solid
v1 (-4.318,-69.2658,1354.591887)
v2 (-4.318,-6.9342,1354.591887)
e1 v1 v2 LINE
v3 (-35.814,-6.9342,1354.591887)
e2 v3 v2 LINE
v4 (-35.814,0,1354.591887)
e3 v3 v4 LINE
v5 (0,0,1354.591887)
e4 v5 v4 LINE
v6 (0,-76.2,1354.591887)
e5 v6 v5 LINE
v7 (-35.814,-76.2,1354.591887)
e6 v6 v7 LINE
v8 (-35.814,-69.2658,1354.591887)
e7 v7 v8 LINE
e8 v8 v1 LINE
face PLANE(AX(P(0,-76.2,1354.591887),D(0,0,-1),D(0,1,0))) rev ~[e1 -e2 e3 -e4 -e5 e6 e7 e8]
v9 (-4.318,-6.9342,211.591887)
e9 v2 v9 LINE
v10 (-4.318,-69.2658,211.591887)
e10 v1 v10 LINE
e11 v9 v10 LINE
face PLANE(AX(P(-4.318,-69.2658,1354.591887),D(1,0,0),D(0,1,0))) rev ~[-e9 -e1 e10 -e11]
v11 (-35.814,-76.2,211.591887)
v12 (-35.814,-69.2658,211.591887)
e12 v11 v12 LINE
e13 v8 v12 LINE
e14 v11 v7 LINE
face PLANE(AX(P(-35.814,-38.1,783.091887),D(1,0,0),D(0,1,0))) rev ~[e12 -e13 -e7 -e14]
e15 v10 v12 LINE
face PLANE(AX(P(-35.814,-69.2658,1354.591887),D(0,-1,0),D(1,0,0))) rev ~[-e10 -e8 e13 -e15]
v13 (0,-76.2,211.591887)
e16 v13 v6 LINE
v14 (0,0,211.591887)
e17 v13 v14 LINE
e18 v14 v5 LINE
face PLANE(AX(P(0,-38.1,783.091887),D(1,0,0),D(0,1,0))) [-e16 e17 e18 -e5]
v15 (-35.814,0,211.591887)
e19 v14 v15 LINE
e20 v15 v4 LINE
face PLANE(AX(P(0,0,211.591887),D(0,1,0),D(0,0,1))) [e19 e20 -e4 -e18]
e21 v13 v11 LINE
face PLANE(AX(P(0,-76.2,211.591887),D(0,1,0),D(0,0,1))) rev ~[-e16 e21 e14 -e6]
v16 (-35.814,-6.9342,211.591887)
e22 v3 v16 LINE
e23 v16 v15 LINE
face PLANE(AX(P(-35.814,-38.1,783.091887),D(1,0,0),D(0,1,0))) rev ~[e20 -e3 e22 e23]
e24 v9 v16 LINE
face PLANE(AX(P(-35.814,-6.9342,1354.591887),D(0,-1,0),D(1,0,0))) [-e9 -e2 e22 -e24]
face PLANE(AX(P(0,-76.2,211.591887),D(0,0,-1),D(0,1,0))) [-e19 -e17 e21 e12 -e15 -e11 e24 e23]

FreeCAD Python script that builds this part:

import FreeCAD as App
import Part
import Sketcher
Q = App.Units.Quantity


def add_polygon(sketch, points):
    """Adds a closed chain of lines whose ends are joined by coincident constraints."""
    first, n = sketch.GeometryCount, len(points)
    for a, b in zip(points, points[1:] + points[:1]):
        sketch.addGeometry(Part.LineSegment(App.Vector(*a, 0), App.Vector(*b, 0)), False)
    for i in range(n):
        sketch.addConstraint(Sketcher.Constraint("Coincident", first + i, 2, first + (i + 1) % n, 1))

doc = App.newDocument("Part")
body = doc.addObject("PartDesign::Body", "Body")

sketch1 = body.newObject("Sketcher::SketchObject", "Sketch")
sketch1.AttachmentSupport = (doc.getObject("YZ_Plane"), [""])
sketch1.MapMode = "FlatFace"
add_polygon(sketch1, [(-76, 1355), (-76, 212), (0, 212), (0, 1355)])
sketch1.addConstraint(Sketcher.Constraint("Vertical", 0))
sketch1.addConstraint(Sketcher.Constraint("Horizontal", 1))
sketch1.addConstraint(Sketcher.Constraint("Vertical", 2))
sketch1.addConstraint(Sketcher.Constraint("Horizontal", 3))
sketch1.addConstraint(Sketcher.Constraint("PointOnObject", 1, 2, -2))
sketch1.addConstraint(Sketcher.Constraint("DistanceX", 1, 1, 1, 2, Q("3 in")))
sketch1.addConstraint(Sketcher.Constraint("DistanceY", 0, 2, 0, 1, Q("45 in")))
sketch1.addConstraint(Sketcher.Constraint("DistanceY", -1, 1, 0, 2, 211.591887))
pad1 = body.newObject("PartDesign::Pad", "Pad")
pad1.Profile = sketch1
pad1.Length = Q("1.41 in")
pad1.Reversed = True

sketch2 = body.newObject("Sketcher::SketchObject", "Sketch001")
sketch2.AttachmentSupport = (doc.getObject("XY_Plane"), [""])
sketch2.MapMode = "FlatFace"
sketch2.AttachmentOffset = App.Placement(App.Vector(0, 0, 1354.591887), App.Rotation())
add_polygon(sketch2, [(-36, -7), (-36, -69), (-4, -69), (-4, -7)])
sketch2.addConstraint(Sketcher.Constraint("Vertical", 0))
sketch2.addConstraint(Sketcher.Constraint("Horizontal", 1))
sketch2.addConstraint(Sketcher.Constraint("Vertical", 2))
sketch2.addConstraint(Sketcher.Constraint("Horizontal", 3))
sketch2.addConstraint(Sketcher.Constraint("DistanceX", 1, 1, 1, 2, Q("1.24 in")))
sketch2.addConstraint(Sketcher.Constraint("DistanceY", 0, 2, 0, 1, Q("2.454 in")))
sketch2.addConstraint(Sketcher.Constraint("DistanceX", 0, 2, -1, 1, Q("1.41 in")))
sketch2.addConstraint(Sketcher.Constraint("DistanceY", 0, 2, -1, 1, Q("2.727 in")))
pocket1 = body.newObject("PartDesign::Pocket", "Pocket")
pocket1.Profile = sketch2
pocket1.Type = "ThroughAll"

doc.recompute()
